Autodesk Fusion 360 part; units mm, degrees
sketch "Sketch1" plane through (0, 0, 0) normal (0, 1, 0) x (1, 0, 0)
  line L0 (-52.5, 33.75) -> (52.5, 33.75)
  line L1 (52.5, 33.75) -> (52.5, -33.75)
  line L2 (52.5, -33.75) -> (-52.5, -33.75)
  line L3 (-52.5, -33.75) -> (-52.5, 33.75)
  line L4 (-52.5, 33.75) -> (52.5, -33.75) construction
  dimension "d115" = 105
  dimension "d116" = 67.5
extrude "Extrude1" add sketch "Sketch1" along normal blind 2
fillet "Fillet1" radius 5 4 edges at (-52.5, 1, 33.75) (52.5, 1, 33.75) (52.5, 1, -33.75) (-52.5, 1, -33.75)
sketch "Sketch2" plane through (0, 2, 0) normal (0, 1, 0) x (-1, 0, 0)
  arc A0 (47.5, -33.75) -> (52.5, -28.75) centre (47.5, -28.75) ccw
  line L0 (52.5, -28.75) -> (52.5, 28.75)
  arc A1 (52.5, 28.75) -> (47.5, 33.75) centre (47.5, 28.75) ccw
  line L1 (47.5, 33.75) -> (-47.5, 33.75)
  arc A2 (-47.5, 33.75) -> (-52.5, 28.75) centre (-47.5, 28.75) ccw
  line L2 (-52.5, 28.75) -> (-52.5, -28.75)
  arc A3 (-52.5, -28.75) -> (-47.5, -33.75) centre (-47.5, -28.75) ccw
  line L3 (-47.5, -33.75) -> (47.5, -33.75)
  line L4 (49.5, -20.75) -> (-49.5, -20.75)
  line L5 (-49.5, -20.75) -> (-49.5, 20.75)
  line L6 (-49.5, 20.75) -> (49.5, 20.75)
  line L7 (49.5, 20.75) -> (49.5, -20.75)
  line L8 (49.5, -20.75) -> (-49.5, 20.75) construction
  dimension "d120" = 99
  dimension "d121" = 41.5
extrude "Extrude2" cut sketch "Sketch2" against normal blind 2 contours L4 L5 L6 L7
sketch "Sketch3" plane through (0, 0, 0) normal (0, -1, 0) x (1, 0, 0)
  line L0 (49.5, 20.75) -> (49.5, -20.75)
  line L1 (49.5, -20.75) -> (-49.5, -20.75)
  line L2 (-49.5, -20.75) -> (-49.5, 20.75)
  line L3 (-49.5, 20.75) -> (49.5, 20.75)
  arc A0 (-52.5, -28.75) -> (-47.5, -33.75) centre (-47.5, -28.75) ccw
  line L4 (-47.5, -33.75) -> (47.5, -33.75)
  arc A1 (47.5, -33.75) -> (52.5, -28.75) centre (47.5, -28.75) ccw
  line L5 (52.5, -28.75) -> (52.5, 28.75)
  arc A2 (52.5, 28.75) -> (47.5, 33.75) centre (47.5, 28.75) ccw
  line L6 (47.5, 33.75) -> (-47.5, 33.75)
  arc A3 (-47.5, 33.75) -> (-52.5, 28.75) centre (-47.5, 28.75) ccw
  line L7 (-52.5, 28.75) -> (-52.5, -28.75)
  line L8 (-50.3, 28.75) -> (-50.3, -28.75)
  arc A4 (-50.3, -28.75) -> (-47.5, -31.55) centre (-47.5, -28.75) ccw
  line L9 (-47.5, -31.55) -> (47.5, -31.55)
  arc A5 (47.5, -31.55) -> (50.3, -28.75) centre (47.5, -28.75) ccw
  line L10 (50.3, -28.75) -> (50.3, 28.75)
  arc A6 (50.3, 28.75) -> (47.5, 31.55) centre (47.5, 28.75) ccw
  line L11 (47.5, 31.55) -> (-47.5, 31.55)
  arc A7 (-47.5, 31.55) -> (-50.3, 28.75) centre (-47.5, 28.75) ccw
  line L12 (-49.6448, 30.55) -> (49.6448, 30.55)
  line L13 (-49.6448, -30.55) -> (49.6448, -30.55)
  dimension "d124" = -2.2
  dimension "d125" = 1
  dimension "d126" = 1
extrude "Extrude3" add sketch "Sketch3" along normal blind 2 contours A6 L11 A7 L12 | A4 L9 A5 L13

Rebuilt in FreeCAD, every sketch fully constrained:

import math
import FreeCAD as App
import Part
import Sketcher
from FreeCAD import Vector
Q = App.Units.Quantity


def edges_at(feature, points):
    """Names of the edges that pass closest to the given points."""
    edges = feature.Shape.Edges
    near = lambda p: min(range(len(edges)), key=lambda i: edges[i].distToShape(Part.Vertex(*p))[0])
    return sorted({f"Edge{near(p) + 1}" for p in points})


def add_polygon(sketch, points):
    """Adds a closed chain of lines whose ends are joined by coincident constraints."""
    first, n = sketch.GeometryCount, len(points)
    for a, b in zip(points, points[1:] + points[:1]):
        sketch.addGeometry(Part.LineSegment(App.Vector(*a, 0), App.Vector(*b, 0)), False)
    for i in range(n):
        sketch.addConstraint(Sketcher.Constraint("Coincident", first + i, 2, first + (i + 1) % n, 1))

doc = App.newDocument("Part")
body = doc.addObject("PartDesign::Body", "Body")

# Sketch on XZ plane
sketch1 = body.newObject("Sketcher::SketchObject", "Sketch")
sketch1.AttachmentSupport = (doc.getObject("XZ_Plane"), [""])
sketch1.MapMode = "FlatFace"
add_polygon(sketch1, [(52, -34), (-52, -34), (-52, 34), (52, 34)])  # lines 0-3
sketch1.addConstraint([
    Sketcher.Constraint("Horizontal", 0),
    Sketcher.Constraint("Vertical", 1),
    Sketcher.Constraint("Horizontal", 2),
    Sketcher.Constraint("Vertical", 3),
    Sketcher.Constraint("Symmetric", 0, 2, 2, 2, -1, 1),
    Sketcher.Constraint("DistanceX", 0, 2, 0, 1, Q("105 mm")),
    Sketcher.Constraint("DistanceY", 1, 1, 1, 2, Q("67.5 mm")),
])
pad1 = body.newObject("PartDesign::Pad", "Pad")
pad1.Profile = sketch1
pad1.Length = 2
pad1.Reversed = True
doc.recompute()

fillet = body.newObject("PartDesign::Fillet", "Fillet")
fillet.Base = (pad1, edges_at(pad1, [
    (-52.5, 1, 33.75),
    (52.5, 1, 33.75),
    (52.5, 1, -33.75),
    (-52.5, 1, -33.75),
]))
fillet.Radius = 5

# Sketch on XZ plane
sketch2 = body.newObject("Sketcher::SketchObject", "Sketch001")
sketch2.AttachmentSupport = (doc.getObject("XZ_Plane"), [""])
sketch2.MapMode = "FlatFace"
sketch2.AttachmentOffset = App.Placement(Vector(0, 0, -2), App.Rotation())
add_polygon(sketch2, [(50, -21), (-50, -21), (-50, 21), (50, 21)])  # lines 0-3
sketch2.addConstraint([
    Sketcher.Constraint("Horizontal", 0),
    Sketcher.Constraint("Vertical", 1),
    Sketcher.Constraint("Horizontal", 2),
    Sketcher.Constraint("Vertical", 3),
    Sketcher.Constraint("Symmetric", 0, 2, 2, 2, -1, 1),
    Sketcher.Constraint("DistanceX", 0, 2, 0, 1, Q("99 mm")),
    Sketcher.Constraint("DistanceY", 1, 1, 1, 2, Q("41.5 mm")),
])
pocket1 = body.newObject("PartDesign::Pocket", "Pocket")
pocket1.Profile = sketch2
pocket1.Length = 2
pocket1.Reversed = True

# Sketch on XZ plane
sketch3 = body.newObject("Sketcher::SketchObject", "Sketch002")
sketch3.AttachmentSupport = (doc.getObject("XZ_Plane"), [""])
sketch3.MapMode = "FlatFace"
sketch3.addGeometry([
    Part.ArcOfCircle(Part.Circle(Vector(-47.5, 28.8, 0), Vector(0, 0, 1), 2.8), math.radians(90), math.radians(140)),  # 0
    Part.LineSegment(Vector(-49.6, 30.6, 0), Vector(49.6, 30.6, 0)),  # 1
    Part.ArcOfCircle(Part.Circle(Vector(47.5, 28.8, 0), Vector(0, 0, 1), 2.8), math.radians(40), math.radians(90)),  # 2
    Part.LineSegment(Vector(47.5, 31.6, 0), Vector(-47.5, 31.6, 0)),  # 3
    Part.LineSegment(Vector(49.6, -30.6, 0), Vector(-49.6, -30.6, 0)),  # 4
    Part.ArcOfCircle(Part.Circle(Vector(-47.5, -28.8, 0), Vector(0, 0, 1), 2.8), math.radians(-140), math.radians(-90)),  # 5
    Part.LineSegment(Vector(-47.5, -31.6, 0), Vector(47.5, -31.6, 0)),  # 6
    Part.ArcOfCircle(Part.Circle(Vector(47.5, -28.8, 0), Vector(0, 0, 1), 2.8), math.radians(-90), math.radians(-40)),  # 7
], False)
sketch3.addConstraint([
    Sketcher.Constraint("Coincident", 0, 2, 1, 1),
    Sketcher.Constraint("Coincident", 1, 2, 2, 1),
    Sketcher.Constraint("Tangent", 2, 2, 3, 1),
    Sketcher.Constraint("Tangent", 3, 2, 0, 1),
    Sketcher.Constraint("Coincident", 4, 2, 5, 1),
    Sketcher.Constraint("Tangent", 5, 2, 6, 1),
    Sketcher.Constraint("Tangent", 6, 2, 7, 1),
    Sketcher.Constraint("Coincident", 7, 2, 4, 1),
    Sketcher.Constraint("Horizontal", 1),
    Sketcher.Constraint("Horizontal", 3),
    Sketcher.Constraint("Horizontal", 4),
    Sketcher.Constraint("Horizontal", 6),
    Sketcher.Constraint("Equal", 0, 2),
    Sketcher.Constraint("Equal", 2, 5),
    Sketcher.Constraint("Equal", 5, 7),
    Sketcher.Constraint("Symmetric", 2, 3, 5, 3, -1, 1),
    Sketcher.Constraint("Symmetric", 0, 2, 7, 2, -1, 1),
    Sketcher.Constraint("Vertical", 0, 3, 5, 3),
    Sketcher.Constraint("DistanceY", 1, 2, 2, 2, Q("1 mm")),
    Sketcher.Constraint("Radius", 0, Q("2.8 mm")),
    Sketcher.Constraint("DistanceX", 3, 2, 3, 1, Q("95 mm")),
    Sketcher.Constraint("DistanceY", 5, 3, 0, 3, Q("57.5 mm")),
])
pad2 = body.newObject("PartDesign::Pad", "Pad001")
pad2.Profile = sketch3
pad2.Length = 2

doc.recompute()
